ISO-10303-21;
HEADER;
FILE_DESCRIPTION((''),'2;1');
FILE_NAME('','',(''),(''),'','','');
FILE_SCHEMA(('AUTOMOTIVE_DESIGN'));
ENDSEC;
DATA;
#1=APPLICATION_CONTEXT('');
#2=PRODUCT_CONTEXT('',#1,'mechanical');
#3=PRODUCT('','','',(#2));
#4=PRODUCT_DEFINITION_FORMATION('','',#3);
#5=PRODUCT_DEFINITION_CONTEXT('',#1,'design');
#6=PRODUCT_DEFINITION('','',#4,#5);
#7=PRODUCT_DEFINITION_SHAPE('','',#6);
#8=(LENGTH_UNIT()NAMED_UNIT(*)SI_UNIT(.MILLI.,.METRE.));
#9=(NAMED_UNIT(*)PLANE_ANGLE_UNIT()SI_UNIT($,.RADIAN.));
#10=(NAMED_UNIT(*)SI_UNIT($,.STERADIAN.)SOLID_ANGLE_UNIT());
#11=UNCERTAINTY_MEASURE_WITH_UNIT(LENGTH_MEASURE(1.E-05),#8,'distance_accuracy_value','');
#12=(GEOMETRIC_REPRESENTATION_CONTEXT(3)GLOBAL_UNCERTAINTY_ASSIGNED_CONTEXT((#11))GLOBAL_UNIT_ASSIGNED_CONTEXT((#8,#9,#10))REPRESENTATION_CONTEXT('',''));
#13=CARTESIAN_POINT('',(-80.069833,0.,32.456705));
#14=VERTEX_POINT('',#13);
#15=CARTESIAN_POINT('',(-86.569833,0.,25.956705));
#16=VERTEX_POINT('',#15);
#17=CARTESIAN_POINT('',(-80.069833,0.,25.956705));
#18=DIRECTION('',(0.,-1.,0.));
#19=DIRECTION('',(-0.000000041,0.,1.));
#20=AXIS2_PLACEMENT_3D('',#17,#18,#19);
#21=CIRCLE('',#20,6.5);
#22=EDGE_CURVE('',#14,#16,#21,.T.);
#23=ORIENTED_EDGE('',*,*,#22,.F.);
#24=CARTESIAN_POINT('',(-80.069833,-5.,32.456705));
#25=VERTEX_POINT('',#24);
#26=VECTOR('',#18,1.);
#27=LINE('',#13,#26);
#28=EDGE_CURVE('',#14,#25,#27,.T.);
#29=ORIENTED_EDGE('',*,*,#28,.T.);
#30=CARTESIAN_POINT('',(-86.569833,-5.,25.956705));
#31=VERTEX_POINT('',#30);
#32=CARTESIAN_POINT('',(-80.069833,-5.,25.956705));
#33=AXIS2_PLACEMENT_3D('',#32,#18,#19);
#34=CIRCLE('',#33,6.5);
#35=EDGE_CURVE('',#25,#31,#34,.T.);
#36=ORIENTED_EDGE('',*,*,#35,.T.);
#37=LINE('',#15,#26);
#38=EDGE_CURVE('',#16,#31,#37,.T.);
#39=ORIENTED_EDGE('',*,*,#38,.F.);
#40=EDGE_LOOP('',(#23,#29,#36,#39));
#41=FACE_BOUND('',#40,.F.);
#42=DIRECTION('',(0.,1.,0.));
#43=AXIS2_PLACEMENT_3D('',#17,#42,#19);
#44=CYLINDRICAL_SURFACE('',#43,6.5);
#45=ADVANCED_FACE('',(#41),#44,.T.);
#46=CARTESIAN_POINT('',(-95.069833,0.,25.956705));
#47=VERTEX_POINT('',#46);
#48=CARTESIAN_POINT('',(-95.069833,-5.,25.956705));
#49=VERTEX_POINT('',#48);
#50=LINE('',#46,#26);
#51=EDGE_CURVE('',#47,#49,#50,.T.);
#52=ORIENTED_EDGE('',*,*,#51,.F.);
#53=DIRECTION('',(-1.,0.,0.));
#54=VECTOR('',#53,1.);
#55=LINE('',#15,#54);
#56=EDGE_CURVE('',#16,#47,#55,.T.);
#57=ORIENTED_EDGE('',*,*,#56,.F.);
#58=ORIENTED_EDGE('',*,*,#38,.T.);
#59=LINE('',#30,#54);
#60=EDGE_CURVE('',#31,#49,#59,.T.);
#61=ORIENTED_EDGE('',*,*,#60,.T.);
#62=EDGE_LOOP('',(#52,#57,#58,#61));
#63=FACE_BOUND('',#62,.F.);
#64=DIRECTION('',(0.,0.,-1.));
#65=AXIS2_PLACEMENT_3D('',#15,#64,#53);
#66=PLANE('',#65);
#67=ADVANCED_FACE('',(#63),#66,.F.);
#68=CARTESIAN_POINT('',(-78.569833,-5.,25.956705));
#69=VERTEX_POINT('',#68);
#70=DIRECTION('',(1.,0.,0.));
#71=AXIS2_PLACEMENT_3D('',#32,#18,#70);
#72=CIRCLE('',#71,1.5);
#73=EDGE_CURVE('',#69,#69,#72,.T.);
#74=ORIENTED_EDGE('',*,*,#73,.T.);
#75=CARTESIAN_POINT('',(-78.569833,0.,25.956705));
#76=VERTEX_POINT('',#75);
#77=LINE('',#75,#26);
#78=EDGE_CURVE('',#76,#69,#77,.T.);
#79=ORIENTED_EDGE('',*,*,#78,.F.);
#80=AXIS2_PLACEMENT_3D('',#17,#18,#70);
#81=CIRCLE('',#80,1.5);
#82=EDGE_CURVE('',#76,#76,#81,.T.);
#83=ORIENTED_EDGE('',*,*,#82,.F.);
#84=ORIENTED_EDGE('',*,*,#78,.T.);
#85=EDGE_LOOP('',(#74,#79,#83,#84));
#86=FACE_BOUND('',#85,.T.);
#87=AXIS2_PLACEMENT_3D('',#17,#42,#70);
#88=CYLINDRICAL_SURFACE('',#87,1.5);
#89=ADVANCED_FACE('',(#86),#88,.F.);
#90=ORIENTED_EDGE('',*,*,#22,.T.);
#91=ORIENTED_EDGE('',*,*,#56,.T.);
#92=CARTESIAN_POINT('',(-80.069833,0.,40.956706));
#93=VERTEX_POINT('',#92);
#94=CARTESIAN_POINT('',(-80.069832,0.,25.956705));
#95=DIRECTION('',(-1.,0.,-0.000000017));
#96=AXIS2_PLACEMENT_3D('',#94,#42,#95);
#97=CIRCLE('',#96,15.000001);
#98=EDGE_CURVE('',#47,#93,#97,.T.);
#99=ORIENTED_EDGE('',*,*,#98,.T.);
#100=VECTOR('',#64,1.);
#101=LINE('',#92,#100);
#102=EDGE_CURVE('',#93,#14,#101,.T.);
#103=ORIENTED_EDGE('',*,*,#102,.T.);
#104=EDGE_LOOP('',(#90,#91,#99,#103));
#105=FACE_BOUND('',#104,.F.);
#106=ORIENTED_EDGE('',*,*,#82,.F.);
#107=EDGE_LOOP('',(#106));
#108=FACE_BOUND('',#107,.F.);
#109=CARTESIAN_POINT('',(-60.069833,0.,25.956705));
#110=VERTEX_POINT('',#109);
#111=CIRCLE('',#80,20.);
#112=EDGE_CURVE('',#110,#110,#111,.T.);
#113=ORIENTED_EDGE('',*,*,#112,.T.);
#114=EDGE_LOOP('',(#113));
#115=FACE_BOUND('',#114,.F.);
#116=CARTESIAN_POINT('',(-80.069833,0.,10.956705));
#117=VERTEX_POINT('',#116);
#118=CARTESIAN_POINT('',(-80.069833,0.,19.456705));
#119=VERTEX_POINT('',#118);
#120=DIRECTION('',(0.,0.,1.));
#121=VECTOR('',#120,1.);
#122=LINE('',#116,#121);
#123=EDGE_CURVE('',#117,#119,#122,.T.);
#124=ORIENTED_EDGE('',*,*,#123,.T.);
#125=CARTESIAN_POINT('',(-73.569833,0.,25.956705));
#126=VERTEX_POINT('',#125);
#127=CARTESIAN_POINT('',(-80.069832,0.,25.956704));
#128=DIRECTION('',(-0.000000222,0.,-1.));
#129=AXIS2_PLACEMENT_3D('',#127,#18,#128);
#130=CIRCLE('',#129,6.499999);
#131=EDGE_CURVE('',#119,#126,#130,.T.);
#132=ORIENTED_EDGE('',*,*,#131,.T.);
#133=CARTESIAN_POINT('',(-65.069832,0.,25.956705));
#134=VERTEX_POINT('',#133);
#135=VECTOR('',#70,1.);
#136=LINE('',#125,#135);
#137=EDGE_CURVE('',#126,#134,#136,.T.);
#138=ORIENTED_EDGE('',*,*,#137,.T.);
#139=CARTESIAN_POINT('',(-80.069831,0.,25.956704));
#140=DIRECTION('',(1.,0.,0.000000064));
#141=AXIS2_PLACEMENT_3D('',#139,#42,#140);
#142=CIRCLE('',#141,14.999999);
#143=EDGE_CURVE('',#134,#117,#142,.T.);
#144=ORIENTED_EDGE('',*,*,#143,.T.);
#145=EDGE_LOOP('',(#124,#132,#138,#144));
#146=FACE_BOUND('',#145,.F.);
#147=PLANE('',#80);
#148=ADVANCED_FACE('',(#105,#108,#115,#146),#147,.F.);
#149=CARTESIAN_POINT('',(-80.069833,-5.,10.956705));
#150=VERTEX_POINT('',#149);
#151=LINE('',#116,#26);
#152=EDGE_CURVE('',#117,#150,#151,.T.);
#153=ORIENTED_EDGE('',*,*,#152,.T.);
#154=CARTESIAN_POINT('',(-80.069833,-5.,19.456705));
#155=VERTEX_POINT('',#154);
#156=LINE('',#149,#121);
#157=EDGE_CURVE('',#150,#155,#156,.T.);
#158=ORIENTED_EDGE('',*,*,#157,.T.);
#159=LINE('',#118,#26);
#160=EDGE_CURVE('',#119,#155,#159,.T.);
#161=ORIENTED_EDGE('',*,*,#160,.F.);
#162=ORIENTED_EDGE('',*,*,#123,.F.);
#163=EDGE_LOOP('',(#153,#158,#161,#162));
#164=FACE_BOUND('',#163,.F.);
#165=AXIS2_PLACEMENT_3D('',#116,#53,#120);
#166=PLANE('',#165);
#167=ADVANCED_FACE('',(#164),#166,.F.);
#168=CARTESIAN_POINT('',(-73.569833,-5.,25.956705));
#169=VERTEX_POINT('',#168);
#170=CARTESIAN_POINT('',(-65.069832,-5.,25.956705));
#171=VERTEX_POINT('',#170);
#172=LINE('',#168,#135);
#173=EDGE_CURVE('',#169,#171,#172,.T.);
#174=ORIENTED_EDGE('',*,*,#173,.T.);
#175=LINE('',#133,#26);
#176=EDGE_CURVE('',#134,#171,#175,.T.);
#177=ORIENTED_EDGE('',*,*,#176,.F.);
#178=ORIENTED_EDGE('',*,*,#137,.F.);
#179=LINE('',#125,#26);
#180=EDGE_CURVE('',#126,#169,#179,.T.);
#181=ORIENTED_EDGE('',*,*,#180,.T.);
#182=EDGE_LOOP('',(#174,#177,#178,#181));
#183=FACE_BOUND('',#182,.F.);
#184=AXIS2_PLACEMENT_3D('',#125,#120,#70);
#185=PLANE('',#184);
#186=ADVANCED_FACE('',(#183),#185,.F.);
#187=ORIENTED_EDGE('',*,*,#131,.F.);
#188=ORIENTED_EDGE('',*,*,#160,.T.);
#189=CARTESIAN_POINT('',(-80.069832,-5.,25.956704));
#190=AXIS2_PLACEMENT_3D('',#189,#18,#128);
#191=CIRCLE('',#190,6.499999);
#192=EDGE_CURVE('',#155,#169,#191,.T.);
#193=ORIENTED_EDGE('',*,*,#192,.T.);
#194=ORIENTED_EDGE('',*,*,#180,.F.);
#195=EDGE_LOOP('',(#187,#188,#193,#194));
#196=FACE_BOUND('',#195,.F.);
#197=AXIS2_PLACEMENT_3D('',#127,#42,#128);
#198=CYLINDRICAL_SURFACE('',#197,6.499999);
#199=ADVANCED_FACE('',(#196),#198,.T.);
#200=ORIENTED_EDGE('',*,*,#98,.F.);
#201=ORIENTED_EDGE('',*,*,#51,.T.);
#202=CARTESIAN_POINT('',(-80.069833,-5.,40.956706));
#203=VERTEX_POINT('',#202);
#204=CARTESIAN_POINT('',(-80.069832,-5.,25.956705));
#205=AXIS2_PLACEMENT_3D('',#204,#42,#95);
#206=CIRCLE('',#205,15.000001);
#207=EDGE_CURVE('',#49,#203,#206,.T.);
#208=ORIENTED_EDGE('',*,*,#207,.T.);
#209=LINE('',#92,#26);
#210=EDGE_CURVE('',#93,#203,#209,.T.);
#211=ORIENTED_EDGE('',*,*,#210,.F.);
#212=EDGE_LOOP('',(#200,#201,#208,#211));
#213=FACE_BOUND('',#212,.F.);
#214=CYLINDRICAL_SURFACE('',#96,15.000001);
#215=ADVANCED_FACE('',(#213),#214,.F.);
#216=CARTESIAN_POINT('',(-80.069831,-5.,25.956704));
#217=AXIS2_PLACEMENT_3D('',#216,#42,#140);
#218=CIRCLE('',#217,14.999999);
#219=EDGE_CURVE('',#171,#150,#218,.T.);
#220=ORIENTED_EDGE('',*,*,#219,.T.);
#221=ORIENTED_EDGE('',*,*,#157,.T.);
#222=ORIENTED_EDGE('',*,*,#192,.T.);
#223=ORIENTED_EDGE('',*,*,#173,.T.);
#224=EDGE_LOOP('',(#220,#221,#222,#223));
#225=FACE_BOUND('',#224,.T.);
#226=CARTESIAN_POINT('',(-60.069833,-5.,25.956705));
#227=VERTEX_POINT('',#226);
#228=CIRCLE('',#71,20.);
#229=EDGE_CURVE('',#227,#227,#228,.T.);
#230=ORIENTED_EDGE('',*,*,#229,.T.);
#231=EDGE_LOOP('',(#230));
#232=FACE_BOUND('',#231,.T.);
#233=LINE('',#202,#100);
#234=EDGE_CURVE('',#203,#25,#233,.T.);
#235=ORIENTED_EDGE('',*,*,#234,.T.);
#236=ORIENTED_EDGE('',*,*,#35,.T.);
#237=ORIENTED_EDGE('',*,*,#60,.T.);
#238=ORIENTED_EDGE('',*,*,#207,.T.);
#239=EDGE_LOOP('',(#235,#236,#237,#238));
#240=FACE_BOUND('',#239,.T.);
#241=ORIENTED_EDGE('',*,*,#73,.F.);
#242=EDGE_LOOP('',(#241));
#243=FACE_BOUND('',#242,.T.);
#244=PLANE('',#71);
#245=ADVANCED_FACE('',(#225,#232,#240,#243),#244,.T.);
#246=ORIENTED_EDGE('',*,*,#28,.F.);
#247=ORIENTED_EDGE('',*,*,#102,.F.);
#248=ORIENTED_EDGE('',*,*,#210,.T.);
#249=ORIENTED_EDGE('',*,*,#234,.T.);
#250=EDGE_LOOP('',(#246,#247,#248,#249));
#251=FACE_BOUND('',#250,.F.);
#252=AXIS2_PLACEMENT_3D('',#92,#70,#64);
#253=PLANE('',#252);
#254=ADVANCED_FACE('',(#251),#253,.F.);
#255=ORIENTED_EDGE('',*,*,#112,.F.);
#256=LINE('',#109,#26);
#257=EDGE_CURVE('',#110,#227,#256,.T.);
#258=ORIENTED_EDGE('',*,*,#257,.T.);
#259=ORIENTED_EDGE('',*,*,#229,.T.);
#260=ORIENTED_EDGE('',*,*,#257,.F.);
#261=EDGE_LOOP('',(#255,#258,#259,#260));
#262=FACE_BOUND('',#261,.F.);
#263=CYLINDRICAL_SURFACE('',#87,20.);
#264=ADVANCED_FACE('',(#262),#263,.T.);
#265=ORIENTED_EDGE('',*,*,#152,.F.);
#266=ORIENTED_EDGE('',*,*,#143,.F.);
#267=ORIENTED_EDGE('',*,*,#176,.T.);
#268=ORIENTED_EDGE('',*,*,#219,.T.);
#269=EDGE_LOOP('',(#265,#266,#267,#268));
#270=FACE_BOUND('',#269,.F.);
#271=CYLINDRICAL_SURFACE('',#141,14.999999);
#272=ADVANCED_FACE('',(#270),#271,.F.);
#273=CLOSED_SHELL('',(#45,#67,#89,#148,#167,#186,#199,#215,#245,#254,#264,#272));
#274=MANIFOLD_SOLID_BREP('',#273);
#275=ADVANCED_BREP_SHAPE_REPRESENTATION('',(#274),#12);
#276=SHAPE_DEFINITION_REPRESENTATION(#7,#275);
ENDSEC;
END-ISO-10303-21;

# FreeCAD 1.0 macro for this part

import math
import FreeCAD as App
import Part
import Sketcher
from FreeCAD import Vector
Q = App.Units.Quantity

doc = App.newDocument("Part")
body = doc.addObject("PartDesign::Body", "Body")

# Sketch on XZ plane
sketch1 = body.newObject("Sketcher::SketchObject", "Sketch")
sketch1.AttachmentSupport = (doc.getObject("XZ_Plane"), [""])
sketch1.MapMode = "FlatFace"
sketch1.addGeometry([
    Part.Circle(Vector(-80.1, 26, 0), Vector(0, 0, 1), 20),  # 0
    Part.Circle(Vector(-80.1, 26, 0), Vector(0, 0, 1), 1.5),  # 1
    Part.ArcOfCircle(Part.Circle(Vector(-80.1, 26, 0), Vector(0, 0, 1), 15), math.radians(-90), math.radians(0)),  # 2
    Part.LineSegment(Vector(-80.1, 11, 0), Vector(-80.1, 19.5, 0)),  # 3
    Part.ArcOfCircle(Part.Circle(Vector(-80.1, 26, 0), Vector(0, 0, 1), 6.5), math.radians(-90), math.radians(0)),  # 4
    Part.LineSegment(Vector(-73.6, 26, 0), Vector(-65.1, 26, 0)),  # 5
    Part.ArcOfCircle(Part.Circle(Vector(-80.1, 26, 0), Vector(0, 0, 1), 15), math.radians(90), math.radians(180)),  # 6
    Part.LineSegment(Vector(-80.1, 41, 0), Vector(-80.1, 32.5, 0)),  # 7
    Part.ArcOfCircle(Part.Circle(Vector(-80.1, 26, 0), Vector(0, 0, 1), 6.5), math.radians(90), math.radians(180)),  # 8
    Part.LineSegment(Vector(-86.6, 26, 0), Vector(-95.1, 26, 0)),  # 9
], False)
sketch1.addConstraint([
    Sketcher.Constraint("Coincident", 2, 1, 3, 1),
    Sketcher.Constraint("Coincident", 3, 2, 4, 1),
    Sketcher.Constraint("Coincident", 4, 2, 5, 1),
    Sketcher.Constraint("Coincident", 5, 2, 2, 2),
    Sketcher.Constraint("Coincident", 6, 1, 7, 1),
    Sketcher.Constraint("Coincident", 7, 2, 8, 1),
    Sketcher.Constraint("Coincident", 8, 2, 9, 1),
    Sketcher.Constraint("Coincident", 9, 2, 6, 2),
    Sketcher.Constraint("Vertical", 3),
    Sketcher.Constraint("Horizontal", 5),
    Sketcher.Constraint("Vertical", 7),
    Sketcher.Constraint("Horizontal", 9),
    Sketcher.Constraint("Coincident", 1, 3, 0, 3),
    Sketcher.Constraint("Coincident", 2, 3, 0, 3),
    Sketcher.Constraint("Coincident", 4, 3, 0, 3),
    Sketcher.Constraint("Coincident", 6, 3, 0, 3),
    Sketcher.Constraint("Coincident", 8, 3, 0, 3),
    Sketcher.Constraint("Equal", 2, 6),
    Sketcher.Constraint("Equal", 4, 8),
    Sketcher.Constraint("Horizontal", 8, 3, 4, 2),
    Sketcher.Constraint("Horizontal", 5, 2, 8, 2),
    Sketcher.Constraint("Vertical", 8, 3, 2, 1),
    Sketcher.Constraint("Vertical", 3, 2, 6, 1),
    Sketcher.Constraint("Diameter", 0, Q("40 mm")),
    Sketcher.Constraint("Diameter", 1, Q("3 mm")),
    Sketcher.Constraint("Radius", 2, Q("14.999999 mm")),
    Sketcher.Constraint("Radius", 4, Q("6.499999 mm")),
    Sketcher.Constraint("DistanceX", 2, 3, -1, 1, Q("80.069831 mm")),
    Sketcher.Constraint("DistanceY", -1, 1, 0, 3, Q("25.956705 mm")),
])
pad1 = body.newObject("PartDesign::Pad", "Pad")
pad1.Profile = sketch1
pad1.Length = 5

doc.recompute()
